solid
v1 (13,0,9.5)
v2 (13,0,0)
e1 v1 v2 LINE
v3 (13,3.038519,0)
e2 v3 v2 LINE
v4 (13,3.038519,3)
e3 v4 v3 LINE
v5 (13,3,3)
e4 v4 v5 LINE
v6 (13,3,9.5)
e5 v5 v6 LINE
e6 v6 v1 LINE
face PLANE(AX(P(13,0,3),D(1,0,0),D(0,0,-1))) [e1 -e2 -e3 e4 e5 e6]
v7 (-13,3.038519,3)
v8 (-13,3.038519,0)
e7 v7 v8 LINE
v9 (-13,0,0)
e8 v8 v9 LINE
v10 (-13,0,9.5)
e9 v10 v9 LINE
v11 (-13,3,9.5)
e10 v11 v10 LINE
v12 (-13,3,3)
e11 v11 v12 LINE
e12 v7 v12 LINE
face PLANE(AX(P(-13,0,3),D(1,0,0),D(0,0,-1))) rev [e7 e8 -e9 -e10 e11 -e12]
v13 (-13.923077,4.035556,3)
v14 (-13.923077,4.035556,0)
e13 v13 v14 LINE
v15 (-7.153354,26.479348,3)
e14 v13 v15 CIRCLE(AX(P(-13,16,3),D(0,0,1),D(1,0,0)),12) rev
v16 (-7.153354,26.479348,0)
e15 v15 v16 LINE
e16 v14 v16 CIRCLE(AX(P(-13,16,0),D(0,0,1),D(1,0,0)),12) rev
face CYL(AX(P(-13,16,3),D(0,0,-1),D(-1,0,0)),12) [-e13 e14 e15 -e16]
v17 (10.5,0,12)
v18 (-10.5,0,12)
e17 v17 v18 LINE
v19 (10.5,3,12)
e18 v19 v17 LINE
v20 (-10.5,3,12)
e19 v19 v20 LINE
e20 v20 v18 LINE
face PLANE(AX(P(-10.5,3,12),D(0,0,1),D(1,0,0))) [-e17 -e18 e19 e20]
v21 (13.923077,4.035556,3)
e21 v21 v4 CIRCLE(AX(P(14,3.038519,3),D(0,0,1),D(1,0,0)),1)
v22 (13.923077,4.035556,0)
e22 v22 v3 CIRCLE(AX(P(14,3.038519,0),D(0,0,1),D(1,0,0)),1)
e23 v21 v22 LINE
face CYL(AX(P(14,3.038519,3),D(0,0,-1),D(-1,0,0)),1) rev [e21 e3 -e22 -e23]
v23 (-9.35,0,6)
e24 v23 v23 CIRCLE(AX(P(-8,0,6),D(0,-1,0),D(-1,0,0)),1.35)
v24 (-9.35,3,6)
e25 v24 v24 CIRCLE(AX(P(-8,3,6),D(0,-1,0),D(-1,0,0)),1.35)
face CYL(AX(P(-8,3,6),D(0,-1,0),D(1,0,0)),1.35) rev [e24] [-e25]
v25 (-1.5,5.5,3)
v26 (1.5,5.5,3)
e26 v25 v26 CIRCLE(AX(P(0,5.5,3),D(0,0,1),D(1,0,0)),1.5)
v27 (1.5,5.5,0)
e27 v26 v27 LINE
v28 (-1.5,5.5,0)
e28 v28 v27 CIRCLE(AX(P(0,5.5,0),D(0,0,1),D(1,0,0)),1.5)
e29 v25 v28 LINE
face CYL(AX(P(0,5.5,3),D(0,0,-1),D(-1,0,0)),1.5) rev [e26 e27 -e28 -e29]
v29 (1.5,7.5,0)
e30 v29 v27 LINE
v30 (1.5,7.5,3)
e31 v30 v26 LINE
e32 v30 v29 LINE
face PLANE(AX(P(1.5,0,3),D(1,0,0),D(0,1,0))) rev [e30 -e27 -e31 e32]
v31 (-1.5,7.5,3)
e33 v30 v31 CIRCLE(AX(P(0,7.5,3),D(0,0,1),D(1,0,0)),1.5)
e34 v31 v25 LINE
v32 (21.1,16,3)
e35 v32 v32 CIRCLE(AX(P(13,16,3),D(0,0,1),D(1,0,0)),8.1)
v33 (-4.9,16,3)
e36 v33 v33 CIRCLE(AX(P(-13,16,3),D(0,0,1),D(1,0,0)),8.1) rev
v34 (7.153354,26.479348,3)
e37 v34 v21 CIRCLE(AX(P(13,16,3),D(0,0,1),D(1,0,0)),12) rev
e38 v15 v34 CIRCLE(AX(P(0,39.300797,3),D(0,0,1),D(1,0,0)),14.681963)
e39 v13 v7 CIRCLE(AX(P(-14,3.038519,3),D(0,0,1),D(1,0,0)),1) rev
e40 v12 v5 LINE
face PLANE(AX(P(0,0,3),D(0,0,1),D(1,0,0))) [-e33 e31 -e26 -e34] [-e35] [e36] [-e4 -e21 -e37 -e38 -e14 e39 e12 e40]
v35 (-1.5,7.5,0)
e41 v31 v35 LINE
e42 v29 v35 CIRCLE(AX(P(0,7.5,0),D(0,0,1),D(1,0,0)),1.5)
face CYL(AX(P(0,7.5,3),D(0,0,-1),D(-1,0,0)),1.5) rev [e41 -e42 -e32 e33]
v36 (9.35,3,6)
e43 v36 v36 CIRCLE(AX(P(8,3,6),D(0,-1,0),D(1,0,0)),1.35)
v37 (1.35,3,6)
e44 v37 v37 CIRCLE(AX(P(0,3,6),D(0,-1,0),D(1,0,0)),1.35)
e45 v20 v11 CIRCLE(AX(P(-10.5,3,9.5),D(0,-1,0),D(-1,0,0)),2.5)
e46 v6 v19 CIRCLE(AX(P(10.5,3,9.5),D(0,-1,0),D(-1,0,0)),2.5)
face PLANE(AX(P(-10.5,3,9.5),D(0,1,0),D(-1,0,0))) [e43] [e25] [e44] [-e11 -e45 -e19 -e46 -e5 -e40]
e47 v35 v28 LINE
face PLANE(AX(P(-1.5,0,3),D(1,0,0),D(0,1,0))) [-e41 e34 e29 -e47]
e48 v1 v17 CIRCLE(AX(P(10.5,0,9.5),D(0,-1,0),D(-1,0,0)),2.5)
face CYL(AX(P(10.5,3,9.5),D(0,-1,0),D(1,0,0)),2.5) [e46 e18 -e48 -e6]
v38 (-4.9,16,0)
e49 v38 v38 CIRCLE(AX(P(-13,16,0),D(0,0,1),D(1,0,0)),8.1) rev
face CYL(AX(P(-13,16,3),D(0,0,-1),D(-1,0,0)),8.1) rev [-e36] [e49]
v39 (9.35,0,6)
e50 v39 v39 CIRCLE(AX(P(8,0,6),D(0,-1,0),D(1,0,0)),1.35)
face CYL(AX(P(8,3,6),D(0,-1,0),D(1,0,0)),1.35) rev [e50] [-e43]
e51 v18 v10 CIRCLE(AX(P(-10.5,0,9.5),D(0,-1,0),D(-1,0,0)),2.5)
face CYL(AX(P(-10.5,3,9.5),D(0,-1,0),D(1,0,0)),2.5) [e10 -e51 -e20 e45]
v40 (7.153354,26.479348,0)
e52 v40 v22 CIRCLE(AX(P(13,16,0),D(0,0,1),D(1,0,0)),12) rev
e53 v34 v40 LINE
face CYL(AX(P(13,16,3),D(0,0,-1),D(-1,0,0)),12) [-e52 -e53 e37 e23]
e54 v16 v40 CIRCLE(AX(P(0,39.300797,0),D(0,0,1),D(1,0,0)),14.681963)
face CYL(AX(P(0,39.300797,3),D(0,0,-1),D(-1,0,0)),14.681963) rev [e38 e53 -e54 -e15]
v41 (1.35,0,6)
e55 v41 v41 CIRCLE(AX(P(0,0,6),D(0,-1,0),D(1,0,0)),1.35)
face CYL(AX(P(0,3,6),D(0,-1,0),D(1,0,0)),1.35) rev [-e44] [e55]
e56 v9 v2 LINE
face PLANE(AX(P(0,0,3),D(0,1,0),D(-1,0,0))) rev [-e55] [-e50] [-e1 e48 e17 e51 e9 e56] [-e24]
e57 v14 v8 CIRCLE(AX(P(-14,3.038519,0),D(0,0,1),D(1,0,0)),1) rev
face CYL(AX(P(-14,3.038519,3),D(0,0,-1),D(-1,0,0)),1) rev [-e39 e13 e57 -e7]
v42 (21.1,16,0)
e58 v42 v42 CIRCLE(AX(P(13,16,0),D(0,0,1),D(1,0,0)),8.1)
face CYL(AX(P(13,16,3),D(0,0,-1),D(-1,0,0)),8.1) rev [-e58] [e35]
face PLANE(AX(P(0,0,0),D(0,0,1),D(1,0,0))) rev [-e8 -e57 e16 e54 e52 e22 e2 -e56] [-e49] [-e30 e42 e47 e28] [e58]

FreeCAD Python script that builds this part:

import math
import FreeCAD as App
import Part
import Sketcher
Q = App.Units.Quantity

doc = App.newDocument("Part")
body = doc.addObject("PartDesign::Body", "Body")

# Sketch on XY plane
sketch1 = doc.addObject("Sketcher::SketchObject", "Sketch")
body.addObject(sketch1)
sketch1.AttachmentSupport = (doc.XY_Plane, [""])
sketch1.MapMode = "FlatFace"
sketch1.addGeometry([
    Part.LineSegment(App.Vector(-13, 3, 0), App.Vector(-13, 0, 0)),  # 0
    Part.LineSegment(App.Vector(-13, 0, 0), App.Vector(13, 0, 0)),  # 1
    Part.LineSegment(App.Vector(13, 0, 0), App.Vector(13, 3, 0)),  # 2
    Part.ArcOfCircle(Part.Circle(App.Vector(14, 3, 0), App.Vector(0, 0, 1), 1), math.radians(94), math.radians(180)),  # 3
    Part.ArcOfCircle(Part.Circle(App.Vector(13, 16, 0), App.Vector(0, 0, 1), 12), math.radians(-86), math.radians(0)),  # 4
    Part.ArcOfCircle(Part.Circle(App.Vector(13, 16, 0), App.Vector(0, 0, 1), 12), math.radians(0), math.radians(119)),  # 5
    Part.ArcOfCircle(Part.Circle(App.Vector(0, 39.3, 0), App.Vector(0, 0, 1), 14.7), math.radians(-119), math.radians(-61)),  # 6
    Part.ArcOfCircle(Part.Circle(App.Vector(-13, 16, 0), App.Vector(0, 0, 1), 12), math.radians(61), math.radians(180)),  # 7
    Part.ArcOfCircle(Part.Circle(App.Vector(-13, 16, 0), App.Vector(0, 0, 1), 12), math.radians(180), math.radians(266)),  # 8
    Part.ArcOfCircle(Part.Circle(App.Vector(-14, 3, 0), App.Vector(0, 0, 1), 1), math.radians(0), math.radians(86)),  # 9
    Part.LineSegment(App.Vector(-1.5, 5.5, 0), App.Vector(-1.5, 7.5, 0)),  # 10
    Part.ArcOfCircle(Part.Circle(App.Vector(0, 7.5, 0), App.Vector(0, 0, 1), 1.5), math.radians(0), math.radians(180)),  # 11
    Part.LineSegment(App.Vector(1.5, 7.5, 0), App.Vector(1.5, 5.5, 0)),  # 12
    Part.ArcOfCircle(Part.Circle(App.Vector(0, 5.5, 0), App.Vector(0, 0, 1), 1.5), math.radians(180), math.radians(360)),  # 13
    Part.Circle(App.Vector(-13, 16, 0), App.Vector(0, 0, 1), 8.1),  # 14
    Part.Circle(App.Vector(13, 16, 0), App.Vector(0, 0, 1), 8.1),  # 15
], False)
sketch1.addConstraint([
    Sketcher.Constraint("Coincident", 0, 2, 1, 1),
    Sketcher.Constraint("Coincident", 1, 2, 2, 1),
    Sketcher.Constraint("Tangent", 2, 2, 3, 2),
    Sketcher.Constraint("Tangent", 3, 1, 4, 1),
    Sketcher.Constraint("Tangent", 4, 2, 5, 1),
    Sketcher.Constraint("Tangent", 5, 2, 6, 2),
    Sketcher.Constraint("Tangent", 6, 1, 7, 1),
    Sketcher.Constraint("Tangent", 7, 2, 8, 1),
    Sketcher.Constraint("Tangent", 8, 2, 9, 2),
    Sketcher.Constraint("Tangent", 9, 1, 0, 1),
    Sketcher.Constraint("Tangent", 10, 2, 11, 2),
    Sketcher.Constraint("Tangent", 11, 1, 12, 1),
    Sketcher.Constraint("Tangent", 12, 2, 13, 2),
    Sketcher.Constraint("Tangent", 13, 1, 10, 1),
    Sketcher.Constraint("Vertical", 0),
    Sketcher.Constraint("Horizontal", 1),
    Sketcher.Constraint("Vertical", 2),
    Sketcher.Constraint("Vertical", 10),
    Sketcher.Constraint("Vertical", 12),
    Sketcher.Constraint("Coincident", 14, 3, 7, 3),
    Sketcher.Constraint("Coincident", 15, 3, 4, 3),
    Sketcher.Constraint("Equal", 4, 5),
    Sketcher.Constraint("Equal", 5, 7),
    Sketcher.Constraint("Equal", 7, 8),
    Sketcher.Constraint("Equal", 3, 9),
    Sketcher.Constraint("Equal", 14, 15),
    Sketcher.Constraint("Symmetric", 0, 2, 1, 2, -1, 1),
    Sketcher.Constraint("Symmetric", 4, 3, 7, 3, -2),
    Sketcher.Constraint("PointOnObject", 11, 3, -2),
    Sketcher.Constraint("Horizontal", 15, 3, 4, 2),
    Sketcher.Constraint("Horizontal", 4, 2, 7, 2),
    Sketcher.Constraint("Vertical", 14, 3, 0, 2),
    Sketcher.Constraint("Radius", 3, Q("1 mm")),
    Sketcher.Constraint("Radius", 4, Q("12 mm")),
    Sketcher.Constraint("Diameter", 14, Q("16.2 mm")),
    Sketcher.Constraint("Radius", 11, Q("1.5 mm")),
    Sketcher.Constraint("DistanceX", 1, 1, 1, 2, Q("26 mm")),
    Sketcher.Constraint("DistanceY", 10, 1, 10, 2, Q("2 mm")),
    Sketcher.Constraint("DistanceY", -1, 1, 4, 3, Q("16 mm")),
    Sketcher.Constraint("DistanceY", -1, 1, 11, 3, Q("7.5 mm")),
    Sketcher.Constraint("Radius", 6, Q("14.681963 mm")),
])
pad1 = doc.addObject("PartDesign::Pad", "Pad")
body.addObject(pad1)
pad1.Profile = sketch1
pad1.Length = 3

# Sketch on XZ plane
sketch2 = doc.addObject("Sketcher::SketchObject", "Sketch001")
body.addObject(sketch2)
sketch2.AttachmentSupport = (doc.XZ_Plane, [""])
sketch2.MapMode = "FlatFace"
sketch2.addGeometry([
    Part.LineSegment(App.Vector(-13, 3, 0), App.Vector(13, 3, 0)),  # 0
    Part.LineSegment(App.Vector(13, 3, 0), App.Vector(13, 9.5, 0)),  # 1
    Part.ArcOfCircle(Part.Circle(App.Vector(10.5, 9.5, 0), App.Vector(0, 0, 1), 2.5), math.radians(0), math.radians(90)),  # 2
    Part.LineSegment(App.Vector(10.5, 12, 0), App.Vector(-10.5, 12, 0)),  # 3
    Part.ArcOfCircle(Part.Circle(App.Vector(-10.5, 9.5, 0), App.Vector(0, 0, 1), 2.5), math.radians(90), math.radians(180)),  # 4
    Part.LineSegment(App.Vector(-13, 9.5, 0), App.Vector(-13, 3, 0)),  # 5
    Part.Circle(App.Vector(-8, 6, 0), App.Vector(0, 0, 1), 1.4),  # 6
    Part.Circle(App.Vector(0, 6, 0), App.Vector(0, 0, 1), 1.4),  # 7
    Part.Circle(App.Vector(8, 6, 0), App.Vector(0, 0, 1), 1.4),  # 8
], False)
sketch2.addConstraint([
    Sketcher.Constraint("Coincident", 0, 2, 1, 1),
    Sketcher.Constraint("Tangent", 1, 2, 2, 1),
    Sketcher.Constraint("Tangent", 2, 2, 3, 1),
    Sketcher.Constraint("Tangent", 3, 2, 4, 1),
    Sketcher.Constraint("Tangent", 4, 2, 5, 1),
    Sketcher.Constraint("Coincident", 5, 2, 0, 1),
    Sketcher.Constraint("Horizontal", 0),
    Sketcher.Constraint("Vertical", 1),
    Sketcher.Constraint("Horizontal", 3),
    Sketcher.Constraint("Vertical", 5),
    Sketcher.Constraint("Equal", 2, 4),
    Sketcher.Constraint("Equal", 6, 7),
    Sketcher.Constraint("Equal", 7, 8),
    Sketcher.Constraint("Symmetric", 6, 3, 8, 3, -2),
    Sketcher.Constraint("PointOnObject", 7, 3, -2),
    Sketcher.Constraint("Horizontal", 6, 3, 7, 3),
    Sketcher.Constraint("Diameter", 6, Q("2.7 mm")),
    Sketcher.Constraint("Radius", 2, Q("2.5 mm")),
    Sketcher.Constraint("DistanceX", 0, 1, 0, 2, Q("26 mm")),
    Sketcher.Constraint("DistanceY", 1, 1, 1, 2, Q("6.5 mm")),
    Sketcher.Constraint("DistanceX", 6, 3, -1, 1, Q("8 mm")),
    Sketcher.Constraint("DistanceY", -1, 1, 6, 3, Q("6 mm")),
    Sketcher.Constraint("DistanceX", -1, 1, 0, 2, Q("13 mm")),
    Sketcher.Constraint("DistanceY", -1, 1, 0, 2, Q("3 mm")),
])
pad2 = doc.addObject("PartDesign::Pad", "Pad001")
body.addObject(pad2)
pad2.Profile = sketch2
pad2.Length = 3
pad2.Reversed = True

doc.recompute()
